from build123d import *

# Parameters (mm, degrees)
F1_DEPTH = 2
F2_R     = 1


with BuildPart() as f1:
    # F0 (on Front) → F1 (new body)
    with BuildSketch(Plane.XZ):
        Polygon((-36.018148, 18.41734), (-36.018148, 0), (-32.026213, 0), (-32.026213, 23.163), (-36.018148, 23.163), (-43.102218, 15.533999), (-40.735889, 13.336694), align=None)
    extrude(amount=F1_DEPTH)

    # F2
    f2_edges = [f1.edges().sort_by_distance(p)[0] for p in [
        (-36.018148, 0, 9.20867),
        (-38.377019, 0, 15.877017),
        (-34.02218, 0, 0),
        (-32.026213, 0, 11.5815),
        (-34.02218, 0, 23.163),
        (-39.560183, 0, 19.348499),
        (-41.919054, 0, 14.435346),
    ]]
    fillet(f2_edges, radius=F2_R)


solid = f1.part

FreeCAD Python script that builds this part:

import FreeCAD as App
import Part
import Sketcher


def edges_at(feature, points):
    """Names of the edges that pass closest to the given points."""
    edges = feature.Shape.Edges
    near = lambda p: min(range(len(edges)), key=lambda i: edges[i].distToShape(Part.Vertex(*p))[0])
    return sorted({f"Edge{near(p) + 1}" for p in points})

doc = App.newDocument("Part")
params = doc.addObject("Spreadsheet::Sheet", "Params")
for row, (alias, value) in enumerate([
    ("pad1_length", "2 mm"),
    ("fillet_radius", "1 mm"),
], start=1):
    params.set(f"A{row}", alias)
    params.set(f"B{row}", "=" + value)
    params.setAlias(f"B{row}", alias)

body = doc.addObject("PartDesign::Body", "Body")

# Sketch on XZ plane
sketch1 = body.newObject("Sketcher::SketchObject", "Sketch")
sketch1.AttachmentSupport = (doc.getObject("XZ_Plane"), [""])
sketch1.MapMode = "FlatFace"
sketch1.addGeometry(Part.LineSegment(App.Vector(-36, 18.4, 0), App.Vector(-36, 0, 0)), False)
sketch1.addGeometry(Part.LineSegment(App.Vector(-36, 0, 0), App.Vector(-32, 0, 0)), False)
sketch1.addGeometry(Part.LineSegment(App.Vector(-32, 0, 0), App.Vector(-32, 23.2, 0)), False)
sketch1.addGeometry(Part.LineSegment(App.Vector(-32, 23.2, 0), App.Vector(-36, 23.2, 0)), False)
sketch1.addGeometry(Part.LineSegment(App.Vector(-36, 23.2, 0), App.Vector(-43.1, 15.5, 0)), False)
sketch1.addGeometry(Part.LineSegment(App.Vector(-43.1, 15.5, 0), App.Vector(-40.7, 13.3, 0)), False)
sketch1.addGeometry(Part.LineSegment(App.Vector(-40.7, 13.3, 0), App.Vector(-36, 18.4, 0)), False)
sketch1.addConstraint(Sketcher.Constraint("Coincident", 0, 2, 1, 1))
sketch1.addConstraint(Sketcher.Constraint("Coincident", 1, 2, 2, 1))
sketch1.addConstraint(Sketcher.Constraint("Coincident", 2, 2, 3, 1))
sketch1.addConstraint(Sketcher.Constraint("Coincident", 3, 2, 4, 1))
sketch1.addConstraint(Sketcher.Constraint("Coincident", 4, 2, 5, 1))
sketch1.addConstraint(Sketcher.Constraint("Coincident", 5, 2, 6, 1))
sketch1.addConstraint(Sketcher.Constraint("Coincident", 6, 2, 0, 1))
sketch1.addConstraint(Sketcher.Constraint("Vertical", 0))
sketch1.addConstraint(Sketcher.Constraint("Horizontal", 1))
sketch1.addConstraint(Sketcher.Constraint("Vertical", 2))
sketch1.addConstraint(Sketcher.Constraint("Horizontal", 3))
sketch1.addConstraint(Sketcher.Constraint("PointOnObject", 0, 2, -1))
sketch1.addConstraint(Sketcher.Constraint("Perpendicular", 4, 5))
sketch1.addConstraint(Sketcher.Constraint("Perpendicular", 5, 6))
sketch1.addConstraint(Sketcher.Constraint("Vertical", 0, 2, 3, 2))
sketch1.addConstraint(Sketcher.Constraint("DistanceY", 2, 1, 2, 2, 23.163))
sketch1.addConstraint(Sketcher.Constraint("DistanceY", -1, 1, 4, 2, 15.533999))
sketch1.addConstraint(Sketcher.Constraint("DistanceY", 0, 2, 0, 1, 18.41734))
sketch1.addConstraint(Sketcher.Constraint("Distance", 5, 3.229189))
sketch1.addConstraint(Sketcher.Constraint("DistanceX", 1, 1, 1, 2, 3.991935))
sketch1.addConstraint(Sketcher.Constraint("DistanceX", 5, 2, -1, 1, 40.735889))
pad1 = body.newObject("PartDesign::Pad", "Pad")
pad1.Profile = sketch1
pad1.setExpression("Length", "Params.pad1_length")
doc.recompute()

fillet = body.newObject("PartDesign::Fillet", "Fillet")
fillet.Base = (pad1, edges_at(pad1, [
    (-36.018, 0, 9.209),
    (-38.377, 0, 15.877),
    (-34.022, 0, 0),
    (-32.026, 0, 11.582),
    (-34.022, 0, 23.163),
    (-39.56, 0, 19.348),
    (-41.919, 0, 14.435),
]))
fillet.setExpression("Radius", "Params.fillet_radius")

doc.recompute()
